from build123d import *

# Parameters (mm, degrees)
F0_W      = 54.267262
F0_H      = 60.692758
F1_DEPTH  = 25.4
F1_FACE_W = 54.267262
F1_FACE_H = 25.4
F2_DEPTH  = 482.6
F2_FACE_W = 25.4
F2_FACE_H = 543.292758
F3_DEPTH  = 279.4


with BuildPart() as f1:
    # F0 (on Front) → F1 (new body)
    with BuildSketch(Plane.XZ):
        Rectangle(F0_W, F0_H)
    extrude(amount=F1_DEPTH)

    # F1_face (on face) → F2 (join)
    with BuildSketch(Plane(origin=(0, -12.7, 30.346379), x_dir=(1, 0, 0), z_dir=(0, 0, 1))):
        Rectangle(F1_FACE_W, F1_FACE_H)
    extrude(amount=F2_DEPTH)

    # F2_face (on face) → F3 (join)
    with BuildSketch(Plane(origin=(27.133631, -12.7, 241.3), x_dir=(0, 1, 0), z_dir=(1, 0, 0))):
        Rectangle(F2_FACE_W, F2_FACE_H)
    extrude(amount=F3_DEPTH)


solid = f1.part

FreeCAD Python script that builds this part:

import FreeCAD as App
import Part
import Sketcher
from FreeCAD import Vector
Q = App.Units.Quantity

doc = App.newDocument("Part")
body = doc.addObject("PartDesign::Body", "Body")

sketch1 = body.newObject("Sketcher::SketchObject", "Sketch")
sketch1.AttachmentSupport = (doc.getObject("XZ_Plane"), [""])
sketch1.MapMode = "FlatFace"
sketch1.addGeometry([
    Part.LineSegment(Vector(-27, 30, 0), Vector(-27, -30, 0)),
    Part.LineSegment(Vector(-27, -30, 0), Vector(27, -30, 0)),
    Part.LineSegment(Vector(27, -30, 0), Vector(27, 30, 0)),
    Part.LineSegment(Vector(27, 30, 0), Vector(-27, 30, 0)),
], False)
sketch1.addConstraint([
    Sketcher.Constraint("Coincident", 0, 2, 1, 1),
    Sketcher.Constraint("Coincident", 1, 2, 2, 1),
    Sketcher.Constraint("Coincident", 2, 2, 3, 1),
    Sketcher.Constraint("Coincident", 3, 2, 0, 1),
    Sketcher.Constraint("Vertical", 0),
    Sketcher.Constraint("Horizontal", 1),
    Sketcher.Constraint("Vertical", 2),
    Sketcher.Constraint("Horizontal", 3),
    Sketcher.Constraint("Symmetric", 0, 2, 2, 2, -1, 1),
    Sketcher.Constraint("DistanceX", 1, 1, 1, 2, Q("54.267262 mm")),
    Sketcher.Constraint("DistanceY", 0, 2, 0, 1, Q("60.692758 mm")),
])
pad1 = body.newObject("PartDesign::Pad", "Pad")
pad1.Profile = sketch1
pad1.Length = Q("1 in")

sketch2 = body.newObject("Sketcher::SketchObject", "Sketch001")
sketch2.AttachmentSupport = (doc.getObject("XY_Plane"), [""])
sketch2.MapMode = "FlatFace"
sketch2.AttachmentOffset = App.Placement(Vector(0, 0, 30.346379), App.Rotation())
sketch2.addGeometry([
    Part.LineSegment(Vector(-27, 0, 0), Vector(-27, -25, 0)),
    Part.LineSegment(Vector(-27, -25, 0), Vector(27, -25, 0)),
    Part.LineSegment(Vector(27, -25, 0), Vector(27, 0, 0)),
    Part.LineSegment(Vector(27, 0, 0), Vector(-27, 0, 0)),
], False)
sketch2.addConstraint([
    Sketcher.Constraint("Coincident", 0, 2, 1, 1),
    Sketcher.Constraint("Coincident", 1, 2, 2, 1),
    Sketcher.Constraint("Coincident", 2, 2, 3, 1),
    Sketcher.Constraint("Coincident", 3, 2, 0, 1),
    Sketcher.Constraint("Vertical", 0),
    Sketcher.Constraint("Horizontal", 1),
    Sketcher.Constraint("Vertical", 2),
    Sketcher.Constraint("Horizontal", 3),
    Sketcher.Constraint("Symmetric", 2, 2, 3, 2, -1, 1),
    Sketcher.Constraint("DistanceY", 0, 2, 0, 1, Q("1 in")),
    Sketcher.Constraint("DistanceX", 1, 1, 1, 2, Q("54.267262 mm")),
])
pad2 = body.newObject("PartDesign::Pad", "Pad001")
pad2.Profile = sketch2
pad2.Length = Q("19 in")

sketch3 = body.newObject("Sketcher::SketchObject", "Sketch002")
sketch3.AttachmentSupport = (doc.getObject("YZ_Plane"), [""])
sketch3.MapMode = "FlatFace"
sketch3.AttachmentOffset = App.Placement(Vector(0, 0, 27.133631), App.Rotation())
sketch3.addGeometry([
    Part.LineSegment(Vector(-25, 513, 0), Vector(-25, -30, 0)),
    Part.LineSegment(Vector(-25, -30, 0), Vector(0, -30, 0)),
    Part.LineSegment(Vector(0, -30, 0), Vector(0, 513, 0)),
    Part.LineSegment(Vector(0, 513, 0), Vector(-25, 513, 0)),
], False)
sketch3.addConstraint([
    Sketcher.Constraint("Coincident", 0, 2, 1, 1),
    Sketcher.Constraint("Coincident", 1, 2, 2, 1),
    Sketcher.Constraint("Coincident", 2, 2, 3, 1),
    Sketcher.Constraint("Coincident", 3, 2, 0, 1),
    Sketcher.Constraint("Vertical", 0),
    Sketcher.Constraint("Horizontal", 1),
    Sketcher.Constraint("Vertical", 2),
    Sketcher.Constraint("Horizontal", 3),
    Sketcher.Constraint("PointOnObject", 1, 2, -2),
    Sketcher.Constraint("DistanceX", 1, 1, 1, 2, Q("1 in")),
    Sketcher.Constraint("DistanceY", 0, 2, 0, 1, Q("543.292758 mm")),
    Sketcher.Constraint("DistanceY", 0, 2, -1, 1, Q("30.346379 mm")),
])
pad3 = body.newObject("PartDesign::Pad", "Pad002")
pad3.Profile = sketch3
pad3.Length = Q("11 in")

doc.recompute()
